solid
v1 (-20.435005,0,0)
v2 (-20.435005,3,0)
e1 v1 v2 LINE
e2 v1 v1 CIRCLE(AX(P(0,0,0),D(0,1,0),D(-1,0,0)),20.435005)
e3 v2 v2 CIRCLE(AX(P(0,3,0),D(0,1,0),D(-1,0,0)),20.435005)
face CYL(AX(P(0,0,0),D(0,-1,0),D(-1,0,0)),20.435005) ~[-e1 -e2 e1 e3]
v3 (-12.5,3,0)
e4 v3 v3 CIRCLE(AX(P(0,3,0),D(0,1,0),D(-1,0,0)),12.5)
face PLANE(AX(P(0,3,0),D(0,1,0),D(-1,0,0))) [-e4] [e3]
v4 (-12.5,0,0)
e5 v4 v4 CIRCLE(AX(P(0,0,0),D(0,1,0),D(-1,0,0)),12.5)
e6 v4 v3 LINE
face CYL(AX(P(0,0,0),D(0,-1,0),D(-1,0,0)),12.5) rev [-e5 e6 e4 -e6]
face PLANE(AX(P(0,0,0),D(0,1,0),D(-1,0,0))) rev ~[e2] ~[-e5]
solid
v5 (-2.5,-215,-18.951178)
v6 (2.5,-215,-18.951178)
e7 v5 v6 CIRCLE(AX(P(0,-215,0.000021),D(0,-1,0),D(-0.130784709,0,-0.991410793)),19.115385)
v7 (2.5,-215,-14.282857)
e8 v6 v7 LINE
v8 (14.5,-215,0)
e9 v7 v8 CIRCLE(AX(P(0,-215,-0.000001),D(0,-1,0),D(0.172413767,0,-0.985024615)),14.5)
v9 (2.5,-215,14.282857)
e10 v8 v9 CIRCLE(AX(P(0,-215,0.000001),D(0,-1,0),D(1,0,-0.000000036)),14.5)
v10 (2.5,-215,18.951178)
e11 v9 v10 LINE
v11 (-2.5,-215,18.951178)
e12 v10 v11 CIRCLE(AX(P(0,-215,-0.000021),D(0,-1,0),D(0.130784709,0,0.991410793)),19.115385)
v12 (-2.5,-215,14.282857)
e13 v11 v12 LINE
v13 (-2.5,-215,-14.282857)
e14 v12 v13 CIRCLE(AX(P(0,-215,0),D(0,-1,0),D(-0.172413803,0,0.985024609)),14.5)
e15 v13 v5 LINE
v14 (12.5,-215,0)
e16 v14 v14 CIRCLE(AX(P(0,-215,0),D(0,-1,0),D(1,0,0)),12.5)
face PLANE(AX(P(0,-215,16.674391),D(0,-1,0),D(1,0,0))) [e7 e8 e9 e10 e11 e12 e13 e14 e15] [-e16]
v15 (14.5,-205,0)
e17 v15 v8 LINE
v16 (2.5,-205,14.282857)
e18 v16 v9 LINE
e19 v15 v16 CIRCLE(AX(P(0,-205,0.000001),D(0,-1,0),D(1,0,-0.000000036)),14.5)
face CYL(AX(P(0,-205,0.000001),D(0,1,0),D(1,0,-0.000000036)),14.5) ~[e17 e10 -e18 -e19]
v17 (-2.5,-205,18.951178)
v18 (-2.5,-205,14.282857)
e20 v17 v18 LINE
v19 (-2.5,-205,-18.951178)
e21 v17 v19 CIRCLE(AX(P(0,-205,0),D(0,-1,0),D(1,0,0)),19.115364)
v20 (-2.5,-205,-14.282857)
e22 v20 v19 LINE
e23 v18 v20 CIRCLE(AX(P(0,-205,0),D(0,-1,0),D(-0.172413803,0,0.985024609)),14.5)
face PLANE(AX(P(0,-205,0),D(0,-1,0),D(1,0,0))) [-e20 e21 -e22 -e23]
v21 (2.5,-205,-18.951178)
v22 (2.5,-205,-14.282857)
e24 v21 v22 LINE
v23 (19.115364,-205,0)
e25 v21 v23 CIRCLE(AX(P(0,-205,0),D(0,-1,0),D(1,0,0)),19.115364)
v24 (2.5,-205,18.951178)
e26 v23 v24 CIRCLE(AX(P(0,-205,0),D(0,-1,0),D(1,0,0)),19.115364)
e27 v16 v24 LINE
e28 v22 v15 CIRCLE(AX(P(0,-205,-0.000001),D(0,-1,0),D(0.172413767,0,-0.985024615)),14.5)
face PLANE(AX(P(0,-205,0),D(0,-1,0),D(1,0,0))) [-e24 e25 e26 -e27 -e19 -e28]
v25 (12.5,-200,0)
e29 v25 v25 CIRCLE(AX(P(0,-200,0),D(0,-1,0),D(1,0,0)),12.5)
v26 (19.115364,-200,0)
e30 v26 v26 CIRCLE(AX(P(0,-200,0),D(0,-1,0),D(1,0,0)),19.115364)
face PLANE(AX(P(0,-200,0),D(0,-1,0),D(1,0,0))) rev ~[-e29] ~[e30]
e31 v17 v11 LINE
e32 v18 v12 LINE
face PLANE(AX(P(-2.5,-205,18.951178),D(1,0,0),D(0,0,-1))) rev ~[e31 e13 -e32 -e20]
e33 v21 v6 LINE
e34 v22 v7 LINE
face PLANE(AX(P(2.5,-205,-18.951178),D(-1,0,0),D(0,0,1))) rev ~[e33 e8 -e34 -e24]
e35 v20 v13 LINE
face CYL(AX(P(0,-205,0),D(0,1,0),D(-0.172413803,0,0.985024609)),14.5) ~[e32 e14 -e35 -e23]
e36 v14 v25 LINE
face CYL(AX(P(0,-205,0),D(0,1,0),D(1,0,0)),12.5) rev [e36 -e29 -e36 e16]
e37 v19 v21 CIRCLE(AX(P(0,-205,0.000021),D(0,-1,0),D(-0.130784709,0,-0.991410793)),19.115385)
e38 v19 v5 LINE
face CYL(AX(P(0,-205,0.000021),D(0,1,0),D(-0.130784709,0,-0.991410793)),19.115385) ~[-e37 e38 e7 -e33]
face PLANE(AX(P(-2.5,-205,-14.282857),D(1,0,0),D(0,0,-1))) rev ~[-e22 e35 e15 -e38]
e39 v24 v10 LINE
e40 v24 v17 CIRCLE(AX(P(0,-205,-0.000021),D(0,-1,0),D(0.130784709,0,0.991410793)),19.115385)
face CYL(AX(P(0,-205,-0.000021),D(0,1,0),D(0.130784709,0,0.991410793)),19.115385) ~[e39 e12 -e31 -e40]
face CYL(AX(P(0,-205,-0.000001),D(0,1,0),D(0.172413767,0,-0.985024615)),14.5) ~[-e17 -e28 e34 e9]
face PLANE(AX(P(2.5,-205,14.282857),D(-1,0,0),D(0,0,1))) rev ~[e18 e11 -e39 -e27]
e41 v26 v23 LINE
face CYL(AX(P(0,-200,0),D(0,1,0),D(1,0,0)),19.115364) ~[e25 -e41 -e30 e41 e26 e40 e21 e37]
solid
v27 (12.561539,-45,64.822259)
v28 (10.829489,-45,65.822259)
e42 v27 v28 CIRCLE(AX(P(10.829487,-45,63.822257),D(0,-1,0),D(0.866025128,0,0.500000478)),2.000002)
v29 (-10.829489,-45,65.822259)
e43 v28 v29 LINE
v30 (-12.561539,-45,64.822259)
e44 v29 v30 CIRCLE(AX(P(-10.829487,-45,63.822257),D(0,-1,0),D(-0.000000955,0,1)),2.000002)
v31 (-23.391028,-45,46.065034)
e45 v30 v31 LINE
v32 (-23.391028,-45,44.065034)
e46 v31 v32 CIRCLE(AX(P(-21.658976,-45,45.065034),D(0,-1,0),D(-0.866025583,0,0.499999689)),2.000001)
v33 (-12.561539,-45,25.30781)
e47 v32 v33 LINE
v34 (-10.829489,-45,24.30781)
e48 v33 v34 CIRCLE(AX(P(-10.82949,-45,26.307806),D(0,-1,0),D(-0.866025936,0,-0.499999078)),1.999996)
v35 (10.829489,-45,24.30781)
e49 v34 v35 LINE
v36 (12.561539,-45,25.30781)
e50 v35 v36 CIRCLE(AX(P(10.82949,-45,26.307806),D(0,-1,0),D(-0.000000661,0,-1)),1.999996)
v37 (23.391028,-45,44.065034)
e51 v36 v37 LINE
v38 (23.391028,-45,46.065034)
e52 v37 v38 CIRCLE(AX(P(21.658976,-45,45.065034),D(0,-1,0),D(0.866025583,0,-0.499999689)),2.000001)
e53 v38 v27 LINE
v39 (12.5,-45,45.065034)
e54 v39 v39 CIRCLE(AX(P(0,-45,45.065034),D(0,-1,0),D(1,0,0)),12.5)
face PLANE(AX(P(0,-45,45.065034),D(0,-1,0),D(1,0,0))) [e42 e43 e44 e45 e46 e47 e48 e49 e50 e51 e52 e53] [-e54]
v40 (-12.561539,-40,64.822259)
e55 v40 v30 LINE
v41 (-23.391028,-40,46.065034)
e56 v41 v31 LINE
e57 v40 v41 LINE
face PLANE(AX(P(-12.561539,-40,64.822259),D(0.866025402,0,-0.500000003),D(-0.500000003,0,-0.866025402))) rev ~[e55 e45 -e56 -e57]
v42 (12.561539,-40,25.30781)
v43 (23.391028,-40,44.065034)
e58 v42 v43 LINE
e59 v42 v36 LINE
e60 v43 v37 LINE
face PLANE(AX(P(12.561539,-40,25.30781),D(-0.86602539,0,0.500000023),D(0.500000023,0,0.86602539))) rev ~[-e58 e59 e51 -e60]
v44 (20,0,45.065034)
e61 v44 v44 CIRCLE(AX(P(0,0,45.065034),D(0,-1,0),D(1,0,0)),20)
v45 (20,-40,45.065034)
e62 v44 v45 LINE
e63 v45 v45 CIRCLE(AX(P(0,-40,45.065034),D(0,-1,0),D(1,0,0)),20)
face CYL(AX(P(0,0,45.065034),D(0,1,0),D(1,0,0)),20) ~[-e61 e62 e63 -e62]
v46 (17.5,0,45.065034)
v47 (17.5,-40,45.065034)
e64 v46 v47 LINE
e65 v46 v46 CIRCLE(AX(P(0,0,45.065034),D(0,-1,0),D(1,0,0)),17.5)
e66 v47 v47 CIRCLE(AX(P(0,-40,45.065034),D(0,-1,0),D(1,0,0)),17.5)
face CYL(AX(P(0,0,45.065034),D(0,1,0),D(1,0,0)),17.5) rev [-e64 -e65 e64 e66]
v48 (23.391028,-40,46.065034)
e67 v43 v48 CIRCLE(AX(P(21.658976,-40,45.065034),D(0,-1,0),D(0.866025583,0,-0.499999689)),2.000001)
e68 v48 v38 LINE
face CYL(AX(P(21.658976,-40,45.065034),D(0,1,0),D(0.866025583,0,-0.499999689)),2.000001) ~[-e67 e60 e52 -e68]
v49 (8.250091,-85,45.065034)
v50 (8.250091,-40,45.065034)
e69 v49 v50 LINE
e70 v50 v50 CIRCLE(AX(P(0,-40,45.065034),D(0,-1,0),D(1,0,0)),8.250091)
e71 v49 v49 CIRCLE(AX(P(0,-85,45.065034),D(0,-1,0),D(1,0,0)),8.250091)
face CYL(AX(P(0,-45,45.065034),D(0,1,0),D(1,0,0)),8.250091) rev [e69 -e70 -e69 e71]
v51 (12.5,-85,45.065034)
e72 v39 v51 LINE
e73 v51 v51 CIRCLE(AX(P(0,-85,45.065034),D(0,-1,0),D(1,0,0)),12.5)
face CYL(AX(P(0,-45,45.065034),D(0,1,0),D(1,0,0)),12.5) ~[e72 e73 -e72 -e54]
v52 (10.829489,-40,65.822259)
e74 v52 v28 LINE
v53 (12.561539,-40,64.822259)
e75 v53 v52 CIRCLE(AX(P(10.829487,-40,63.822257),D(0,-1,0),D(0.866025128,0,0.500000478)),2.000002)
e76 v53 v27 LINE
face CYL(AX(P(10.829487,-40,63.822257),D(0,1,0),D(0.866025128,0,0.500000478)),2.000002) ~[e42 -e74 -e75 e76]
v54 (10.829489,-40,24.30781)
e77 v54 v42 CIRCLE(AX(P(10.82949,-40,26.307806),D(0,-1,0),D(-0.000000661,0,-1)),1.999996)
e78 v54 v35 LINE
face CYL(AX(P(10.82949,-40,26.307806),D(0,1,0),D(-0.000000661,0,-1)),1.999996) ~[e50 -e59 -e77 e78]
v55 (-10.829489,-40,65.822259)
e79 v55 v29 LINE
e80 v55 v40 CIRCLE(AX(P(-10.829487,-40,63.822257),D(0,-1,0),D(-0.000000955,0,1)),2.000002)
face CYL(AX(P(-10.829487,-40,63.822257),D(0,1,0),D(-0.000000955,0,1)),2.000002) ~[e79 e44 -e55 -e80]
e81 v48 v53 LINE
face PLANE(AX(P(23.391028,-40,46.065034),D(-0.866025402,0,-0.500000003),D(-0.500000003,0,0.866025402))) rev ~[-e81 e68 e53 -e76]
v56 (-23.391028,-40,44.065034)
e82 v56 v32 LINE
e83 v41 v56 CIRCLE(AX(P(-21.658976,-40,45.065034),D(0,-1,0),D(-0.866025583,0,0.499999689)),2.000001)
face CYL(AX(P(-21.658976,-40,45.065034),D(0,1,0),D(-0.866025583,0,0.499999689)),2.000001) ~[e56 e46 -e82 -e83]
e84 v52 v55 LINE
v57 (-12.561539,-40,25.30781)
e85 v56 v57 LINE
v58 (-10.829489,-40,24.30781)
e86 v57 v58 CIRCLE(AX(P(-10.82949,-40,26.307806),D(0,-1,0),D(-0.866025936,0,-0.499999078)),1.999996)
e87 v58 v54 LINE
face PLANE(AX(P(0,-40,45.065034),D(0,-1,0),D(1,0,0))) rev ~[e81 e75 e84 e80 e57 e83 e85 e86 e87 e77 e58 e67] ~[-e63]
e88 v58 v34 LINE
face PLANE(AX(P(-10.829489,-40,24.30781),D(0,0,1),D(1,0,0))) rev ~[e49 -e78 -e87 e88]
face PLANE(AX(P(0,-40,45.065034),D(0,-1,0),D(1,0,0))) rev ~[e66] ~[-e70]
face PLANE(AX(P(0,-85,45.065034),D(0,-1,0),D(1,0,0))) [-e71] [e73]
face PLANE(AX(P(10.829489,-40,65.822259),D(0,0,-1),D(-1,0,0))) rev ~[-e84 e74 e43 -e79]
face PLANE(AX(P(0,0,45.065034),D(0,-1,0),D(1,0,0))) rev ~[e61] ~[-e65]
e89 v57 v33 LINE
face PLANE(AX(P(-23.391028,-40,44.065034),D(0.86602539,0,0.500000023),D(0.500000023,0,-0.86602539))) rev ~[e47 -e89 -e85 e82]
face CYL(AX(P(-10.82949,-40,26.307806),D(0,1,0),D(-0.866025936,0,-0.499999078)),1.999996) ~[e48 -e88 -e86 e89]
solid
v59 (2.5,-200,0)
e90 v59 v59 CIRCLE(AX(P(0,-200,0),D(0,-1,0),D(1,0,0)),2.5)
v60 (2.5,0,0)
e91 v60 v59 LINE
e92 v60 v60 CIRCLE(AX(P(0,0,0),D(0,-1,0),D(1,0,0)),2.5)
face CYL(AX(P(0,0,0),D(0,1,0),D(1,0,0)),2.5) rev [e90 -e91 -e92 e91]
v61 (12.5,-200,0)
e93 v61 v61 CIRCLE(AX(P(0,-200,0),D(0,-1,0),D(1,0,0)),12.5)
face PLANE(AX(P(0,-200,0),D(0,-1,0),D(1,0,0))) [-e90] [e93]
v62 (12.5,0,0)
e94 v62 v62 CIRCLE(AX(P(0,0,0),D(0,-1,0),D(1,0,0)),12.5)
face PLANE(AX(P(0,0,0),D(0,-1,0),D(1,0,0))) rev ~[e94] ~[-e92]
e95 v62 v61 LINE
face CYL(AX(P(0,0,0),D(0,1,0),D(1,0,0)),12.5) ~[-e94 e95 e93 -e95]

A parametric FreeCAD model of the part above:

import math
import FreeCAD as App
import Part
import Sketcher
Q = App.Units.Quantity

doc = App.newDocument("Part")
params = doc.addObject("Spreadsheet::Sheet", "Params")
for row, (alias, value) in enumerate([
    ("sketch1_diameter", "25 mm"),
    ("sketch1_diameter2", "5 mm"),
    ("pad1_length", "200 mm"),
    ("sketch2_diameter", "25 mm"),
    ("pad2_length", "5 mm"),
    ("sketch3_diameter", "25 mm"),
    ("sketch3_radius", "14.5 mm"),
    ("pad3_length", "10 mm"),
    ("sketch4_diameter", "40 mm"),
    ("sketch4_diameter2", "35 mm"),
    ("pad4_length", "40 mm"),
    ("sketch5_radius", "2.000002 mm"),
    ("pad5_length", "5 mm"),
    ("sketch6_diameter", "25 mm"),
    ("pad6_length", "40 mm"),
    ("sketch7_diameter", "25 mm"),
    ("pad7_length", "3 mm"),
], start=1):
    params.set(f"A{row}", alias)
    params.set(f"B{row}", "=" + value)
    params.setAlias(f"B{row}", alias)

body = doc.addObject("PartDesign::Body", "Body")

# Sketch on XZ plane
sketch1 = body.newObject("Sketcher::SketchObject", "Sketch")
sketch1.AttachmentSupport = (doc.getObject("XZ_Plane"), [""])
sketch1.MapMode = "FlatFace"
sketch1.addGeometry([
    Part.Circle(App.Vector(0, 0, 0), App.Vector(0, 0, 1), 12.5),
    Part.Circle(App.Vector(0, 0, 0), App.Vector(0, 0, 1), 2.5),
], False)
sketch1.addConstraint([
    Sketcher.Constraint("Coincident", 0, 3, -1, 1),
    Sketcher.Constraint("Coincident", 1, 3, -1, 1),
    Sketcher.Constraint("Diameter", 0, 25.0),
    Sketcher.Constraint("Diameter", 1, 5.0),
])
sketch1.setExpression("Constraints[2]", "Params.sketch1_diameter")
sketch1.setExpression("Constraints[3]", "Params.sketch1_diameter2")
pad1 = body.newObject("PartDesign::Pad", "Pad")
pad1.Profile = sketch1
pad1.setExpression("Length", "Params.pad1_length")
body2 = doc.addObject("PartDesign::Body", "Body001")

# Sketch on XZ plane
sketch2 = body2.newObject("Sketcher::SketchObject", "Sketch001")
sketch2.AttachmentSupport = (doc.getObject("XZ_Plane001"), [""])
sketch2.MapMode = "FlatFace"
sketch2.AttachmentOffset = App.Placement(App.Vector(0, 0, 200), App.Rotation())
sketch2.addGeometry([
    Part.Circle(App.Vector(0, 0, 0), App.Vector(0, 0, 1), 19.115364),
    Part.Circle(App.Vector(0, 0, 0), App.Vector(0, 0, 1), 12.5),
], False)
sketch2.addConstraint([
    Sketcher.Constraint("Coincident", 0, 3, -1, 1),
    Sketcher.Constraint("Coincident", 1, 3, -1, 1),
    Sketcher.Constraint("Diameter", 1, 25.0),
    Sketcher.Constraint("Diameter", 0, 38.230728),
])
sketch2.setExpression("Constraints[2]", "Params.sketch2_diameter")
pad2 = body2.newObject("PartDesign::Pad", "Pad001")
pad2.Profile = sketch2
pad2.setExpression("Length", "Params.pad2_length")

# Sketch on XZ plane
sketch3 = body2.newObject("Sketcher::SketchObject", "Sketch002")
sketch3.AttachmentSupport = (doc.getObject("XZ_Plane001"), [""])
sketch3.MapMode = "FlatFace"
sketch3.AttachmentOffset = App.Placement(App.Vector(0, 0, 205), App.Rotation())
sketch3.addGeometry([
    Part.LineSegment(App.Vector(2.5, 14.282857, 0), App.Vector(2.5, 18.951178, 0)),  # 0
    Part.ArcOfCircle(Part.Circle(App.Vector(0, -0.000021, 0), App.Vector(0, 0, 1), 19.115385), math.radians(82.48506), math.radians(97.51494)),  # 1
    Part.LineSegment(App.Vector(-2.5, 18.951178, 0), App.Vector(-2.5, 14.282857, 0)),  # 2
    Part.ArcOfCircle(Part.Circle(App.Vector(0, 0, 0), App.Vector(0, 0, 1), 14.5), math.radians(99.928192), math.radians(260.071808)),  # 3
    Part.LineSegment(App.Vector(-2.5, -14.282857, 0), App.Vector(-2.5, -18.951178, 0)),  # 4
    Part.ArcOfCircle(Part.Circle(App.Vector(0, 0.000021, 0), App.Vector(0, 0, 1), 19.115385), math.radians(-97.51494), math.radians(-82.48506)),  # 5
    Part.LineSegment(App.Vector(2.5, -18.951178, 0), App.Vector(2.5, -14.282857, 0)),  # 6
    Part.ArcOfCircle(Part.Circle(App.Vector(0, -0.000001, 0), App.Vector(0, 0, 1), 14.5), math.radians(-80.07181), math.radians(0.000002)),  # 7
    Part.ArcOfCircle(Part.Circle(App.Vector(0, 0.000001, 0), App.Vector(0, 0, 1), 14.5), math.radians(-0.000002), math.radians(80.07181)),  # 8
    Part.Circle(App.Vector(0, 0, 0), App.Vector(0, 0, 1), 12.5),  # 9
], False)
sketch3.addConstraint([
    Sketcher.Constraint("Coincident", 0, 2, 1, 1),
    Sketcher.Constraint("Coincident", 1, 2, 2, 1),
    Sketcher.Constraint("Coincident", 2, 2, 3, 1),
    Sketcher.Constraint("Coincident", 3, 2, 4, 1),
    Sketcher.Constraint("Coincident", 4, 2, 5, 1),
    Sketcher.Constraint("Coincident", 5, 2, 6, 1),
    Sketcher.Constraint("Coincident", 6, 2, 7, 1),
    Sketcher.Constraint("Tangent", 7, 2, 8, 1),
    Sketcher.Constraint("Coincident", 8, 2, 0, 1),
    Sketcher.Constraint("Vertical", 0),
    Sketcher.Constraint("Vertical", 2),
    Sketcher.Constraint("Vertical", 4),
    Sketcher.Constraint("Vertical", 6),
    Sketcher.Constraint("Coincident", 3, 3, -1, 1),
    Sketcher.Constraint("Coincident", 7, 3, -1, 1),
    Sketcher.Constraint("Coincident", 9, 3, -1, 1),
    Sketcher.Constraint("Equal", 1, 5),
    Sketcher.Constraint("Equal", 3, 7),
    Sketcher.Constraint("Equal", 7, 8),
    Sketcher.Constraint("Symmetric", 1, 3, 5, 3, -1, 1),
    Sketcher.Constraint("Symmetric", 0, 2, 1, 2, -2),
    Sketcher.Constraint("PointOnObject", 7, 2, -1),
    Sketcher.Constraint("Horizontal", 4, 2, 5, 2),
    Sketcher.Constraint("Vertical", 2, 2, 3, 2),
    Sketcher.Constraint("Diameter", 9, 25.0),
    Sketcher.Constraint("Radius", 3, 14.5),
    Sketcher.Constraint("DistanceX", 1, 2, 0, 2, 5.0),
    Sketcher.Constraint("Radius", 1, 19.115385),
    Sketcher.Constraint("DistanceY", 0, 1, 0, 2, 4.668321),
])
sketch3.setExpression("Constraints[24]", "Params.sketch3_diameter")
sketch3.setExpression("Constraints[25]", "Params.sketch3_radius")
pad3 = body2.newObject("PartDesign::Pad", "Pad002")
pad3.Profile = sketch3
pad3.setExpression("Length", "Params.pad3_length")
body3 = doc.addObject("PartDesign::Body", "Body002")

# Sketch on XZ plane
sketch4 = body3.newObject("Sketcher::SketchObject", "Sketch003")
sketch4.AttachmentSupport = (doc.getObject("XZ_Plane002"), [""])
sketch4.MapMode = "FlatFace"
sketch4.addGeometry([
    Part.Circle(App.Vector(0, 45.065034, 0), App.Vector(0, 0, 1), 20),
    Part.Circle(App.Vector(0, 45.065034, 0), App.Vector(0, 0, 1), 17.5),
], False)
sketch4.addConstraint([
    Sketcher.Constraint("Coincident", 1, 3, 0, 3),
    Sketcher.Constraint("PointOnObject", 0, 3, -2),
    Sketcher.Constraint("Diameter", 0, 40.0),
    Sketcher.Constraint("Diameter", 1, 35.0),
    Sketcher.Constraint("DistanceY", -1, 1, 0, 3, 45.065034),
])
sketch4.setExpression("Constraints[2]", "Params.sketch4_diameter")
sketch4.setExpression("Constraints[3]", "Params.sketch4_diameter2")
pad4 = body3.newObject("PartDesign::Pad", "Pad003")
pad4.Profile = sketch4
pad4.setExpression("Length", "Params.pad4_length")

# Sketch on XZ plane
sketch5 = body3.newObject("Sketcher::SketchObject", "Sketch004")
sketch5.AttachmentSupport = (doc.getObject("XZ_Plane002"), [""])
sketch5.MapMode = "FlatFace"
sketch5.AttachmentOffset = App.Placement(App.Vector(0, 0, 40), App.Rotation())
sketch5.addGeometry([
    Part.LineSegment(App.Vector(10.829489, 65.822259, 0), App.Vector(-10.829489, 65.822259, 0)),  # 0
    Part.ArcOfCircle(Part.Circle(App.Vector(-10.829487, 63.822257, 0), App.Vector(0, 0, 1), 2.000002), math.radians(90.000055), math.radians(149.999968)),  # 1
    Part.LineSegment(App.Vector(-12.561539, 64.822259, 0), App.Vector(-23.391028, 46.065034, 0)),  # 2
    Part.ArcOfCircle(Part.Circle(App.Vector(-21.658976, 45.065034, 0), App.Vector(0, 0, 1), 2.000001), math.radians(150.000021), math.radians(209.999979)),  # 3
    Part.LineSegment(App.Vector(-23.391028, 44.065034, 0), App.Vector(-12.561539, 25.30781, 0)),  # 4
    Part.ArcOfCircle(Part.Circle(App.Vector(-10.82949, 26.307806, 0), App.Vector(0, 0, 1), 1.999996), math.radians(-150.000061), math.radians(-89.999962)),  # 5
    Part.LineSegment(App.Vector(-10.829489, 24.30781, 0), App.Vector(10.829489, 24.30781, 0)),  # 6
    Part.ArcOfCircle(Part.Circle(App.Vector(10.82949, 26.307806, 0), App.Vector(0, 0, 1), 1.999996), math.radians(-90.000038), math.radians(-29.999939)),  # 7
    Part.LineSegment(App.Vector(12.561539, 25.30781, 0), App.Vector(23.391028, 44.065034, 0)),  # 8
    Part.ArcOfCircle(Part.Circle(App.Vector(21.658976, 45.065034, 0), App.Vector(0, 0, 1), 2.000001), math.radians(-29.999979), math.radians(29.999979)),  # 9
    Part.LineSegment(App.Vector(23.391028, 46.065034, 0), App.Vector(12.561539, 64.822259, 0)),  # 10
    Part.ArcOfCircle(Part.Circle(App.Vector(10.829487, 63.822257, 0), App.Vector(0, 0, 1), 2.000002), math.radians(30.000032), math.radians(89.999945)),  # 11
    Part.Circle(App.Vector(0, 45.065034, 0), App.Vector(0, 0, 1), 8.250091),  # 12
], False)
sketch5.addConstraint([
    Sketcher.Constraint("Tangent", 0, 2, 1, 1),
    Sketcher.Constraint("Tangent", 1, 2, 2, 1),
    Sketcher.Constraint("Tangent", 2, 2, 3, 1),
    Sketcher.Constraint("Tangent", 3, 2, 4, 1),
    Sketcher.Constraint("Tangent", 4, 2, 5, 1),
    Sketcher.Constraint("Tangent", 5, 2, 6, 1),
    Sketcher.Constraint("Tangent", 6, 2, 7, 1),
    Sketcher.Constraint("Tangent", 7, 2, 8, 1),
    Sketcher.Constraint("Tangent", 8, 2, 9, 1),
    Sketcher.Constraint("Tangent", 9, 2, 10, 1),
    Sketcher.Constraint("Tangent", 10, 2, 11, 1),
    Sketcher.Constraint("Tangent", 11, 2, 0, 1),
    Sketcher.Constraint("Horizontal", 0),
    Sketcher.Constraint("Horizontal", 6),
    Sketcher.Constraint("Equal", 1, 3),
    Sketcher.Constraint("Equal", 5, 7),
    Sketcher.Constraint("Equal", 3, 9),
    Sketcher.Constraint("Equal", 9, 11),
    Sketcher.Constraint("Symmetric", 3, 3, 9, 3, -2),
    Sketcher.Constraint("PointOnObject", 12, 3, -2),
    Sketcher.Constraint("Parallel", 2, 8),
    Sketcher.Constraint("Parallel", 4, 10),
    Sketcher.Constraint("Horizontal", 9, 3, 12, 3),
    Sketcher.Constraint("Horizontal", 4, 2, 7, 2),
    Sketcher.Constraint("Vertical", 5, 3, 0, 2),
    Sketcher.Constraint("Vertical", 1, 2, 4, 2),
    Sketcher.Constraint("Radius", 1, 2.000002),
    Sketcher.Constraint("Angle", 2, Q("-120 deg")),
    Sketcher.Constraint("Diameter", 12, 16.500182),
    Sketcher.Constraint("DistanceX", 0, 2, 0, 1, 21.658978),
    Sketcher.Constraint("DistanceY", -1, 1, 0, 2, 65.822259),
    Sketcher.Constraint("DistanceX", 3, 2, -1, 1, 23.391028),
])
sketch5.setExpression("Constraints[26]", "Params.sketch5_radius")
pad5 = body3.newObject("PartDesign::Pad", "Pad004")
pad5.Profile = sketch5
pad5.setExpression("Length", "Params.pad5_length")

# Sketch on XZ plane
sketch6 = body3.newObject("Sketcher::SketchObject", "Sketch005")
sketch6.AttachmentSupport = (doc.getObject("XZ_Plane002"), [""])
sketch6.MapMode = "FlatFace"
sketch6.AttachmentOffset = App.Placement(App.Vector(0, 0, 45), App.Rotation())
sketch6.addGeometry([
    Part.Circle(App.Vector(0, 45.065034, 0), App.Vector(0, 0, 1), 12.5),
    Part.Circle(App.Vector(0, 45.065034, 0), App.Vector(0, 0, 1), 8.250091),
], False)
sketch6.addConstraint([
    Sketcher.Constraint("Coincident", 1, 3, 0, 3),
    Sketcher.Constraint("PointOnObject", 0, 3, -2),
    Sketcher.Constraint("Diameter", 0, 25.0),
    Sketcher.Constraint("Diameter", 1, 16.500182),
    Sketcher.Constraint("DistanceY", -1, 1, 0, 3, 45.065034),
])
sketch6.setExpression("Constraints[2]", "Params.sketch6_diameter")
pad6 = body3.newObject("PartDesign::Pad", "Pad005")
pad6.Profile = sketch6
pad6.setExpression("Length", "Params.pad6_length")
body4 = doc.addObject("PartDesign::Body", "Body003")

# Sketch on XZ plane
sketch7 = body4.newObject("Sketcher::SketchObject", "Sketch006")
sketch7.AttachmentSupport = (doc.getObject("XZ_Plane003"), [""])
sketch7.MapMode = "FlatFace"
sketch7.addGeometry([
    Part.Circle(App.Vector(0, 0, 0), App.Vector(0, 0, 1), 20.435005),
    Part.Circle(App.Vector(0, 0, 0), App.Vector(0, 0, 1), 12.5),
], False)
sketch7.addConstraint([
    Sketcher.Constraint("Coincident", 0, 3, -1, 1),
    Sketcher.Constraint("Coincident", 1, 3, -1, 1),
    Sketcher.Constraint("Diameter", 1, 25.0),
    Sketcher.Constraint("Diameter", 0, 40.87001),
])
sketch7.setExpression("Constraints[2]", "Params.sketch7_diameter")
pad7 = body4.newObject("PartDesign::Pad", "Pad006")
pad7.Profile = sketch7
pad7.setExpression("Length", "Params.pad7_length")
pad7.Reversed = True

doc.recompute()
